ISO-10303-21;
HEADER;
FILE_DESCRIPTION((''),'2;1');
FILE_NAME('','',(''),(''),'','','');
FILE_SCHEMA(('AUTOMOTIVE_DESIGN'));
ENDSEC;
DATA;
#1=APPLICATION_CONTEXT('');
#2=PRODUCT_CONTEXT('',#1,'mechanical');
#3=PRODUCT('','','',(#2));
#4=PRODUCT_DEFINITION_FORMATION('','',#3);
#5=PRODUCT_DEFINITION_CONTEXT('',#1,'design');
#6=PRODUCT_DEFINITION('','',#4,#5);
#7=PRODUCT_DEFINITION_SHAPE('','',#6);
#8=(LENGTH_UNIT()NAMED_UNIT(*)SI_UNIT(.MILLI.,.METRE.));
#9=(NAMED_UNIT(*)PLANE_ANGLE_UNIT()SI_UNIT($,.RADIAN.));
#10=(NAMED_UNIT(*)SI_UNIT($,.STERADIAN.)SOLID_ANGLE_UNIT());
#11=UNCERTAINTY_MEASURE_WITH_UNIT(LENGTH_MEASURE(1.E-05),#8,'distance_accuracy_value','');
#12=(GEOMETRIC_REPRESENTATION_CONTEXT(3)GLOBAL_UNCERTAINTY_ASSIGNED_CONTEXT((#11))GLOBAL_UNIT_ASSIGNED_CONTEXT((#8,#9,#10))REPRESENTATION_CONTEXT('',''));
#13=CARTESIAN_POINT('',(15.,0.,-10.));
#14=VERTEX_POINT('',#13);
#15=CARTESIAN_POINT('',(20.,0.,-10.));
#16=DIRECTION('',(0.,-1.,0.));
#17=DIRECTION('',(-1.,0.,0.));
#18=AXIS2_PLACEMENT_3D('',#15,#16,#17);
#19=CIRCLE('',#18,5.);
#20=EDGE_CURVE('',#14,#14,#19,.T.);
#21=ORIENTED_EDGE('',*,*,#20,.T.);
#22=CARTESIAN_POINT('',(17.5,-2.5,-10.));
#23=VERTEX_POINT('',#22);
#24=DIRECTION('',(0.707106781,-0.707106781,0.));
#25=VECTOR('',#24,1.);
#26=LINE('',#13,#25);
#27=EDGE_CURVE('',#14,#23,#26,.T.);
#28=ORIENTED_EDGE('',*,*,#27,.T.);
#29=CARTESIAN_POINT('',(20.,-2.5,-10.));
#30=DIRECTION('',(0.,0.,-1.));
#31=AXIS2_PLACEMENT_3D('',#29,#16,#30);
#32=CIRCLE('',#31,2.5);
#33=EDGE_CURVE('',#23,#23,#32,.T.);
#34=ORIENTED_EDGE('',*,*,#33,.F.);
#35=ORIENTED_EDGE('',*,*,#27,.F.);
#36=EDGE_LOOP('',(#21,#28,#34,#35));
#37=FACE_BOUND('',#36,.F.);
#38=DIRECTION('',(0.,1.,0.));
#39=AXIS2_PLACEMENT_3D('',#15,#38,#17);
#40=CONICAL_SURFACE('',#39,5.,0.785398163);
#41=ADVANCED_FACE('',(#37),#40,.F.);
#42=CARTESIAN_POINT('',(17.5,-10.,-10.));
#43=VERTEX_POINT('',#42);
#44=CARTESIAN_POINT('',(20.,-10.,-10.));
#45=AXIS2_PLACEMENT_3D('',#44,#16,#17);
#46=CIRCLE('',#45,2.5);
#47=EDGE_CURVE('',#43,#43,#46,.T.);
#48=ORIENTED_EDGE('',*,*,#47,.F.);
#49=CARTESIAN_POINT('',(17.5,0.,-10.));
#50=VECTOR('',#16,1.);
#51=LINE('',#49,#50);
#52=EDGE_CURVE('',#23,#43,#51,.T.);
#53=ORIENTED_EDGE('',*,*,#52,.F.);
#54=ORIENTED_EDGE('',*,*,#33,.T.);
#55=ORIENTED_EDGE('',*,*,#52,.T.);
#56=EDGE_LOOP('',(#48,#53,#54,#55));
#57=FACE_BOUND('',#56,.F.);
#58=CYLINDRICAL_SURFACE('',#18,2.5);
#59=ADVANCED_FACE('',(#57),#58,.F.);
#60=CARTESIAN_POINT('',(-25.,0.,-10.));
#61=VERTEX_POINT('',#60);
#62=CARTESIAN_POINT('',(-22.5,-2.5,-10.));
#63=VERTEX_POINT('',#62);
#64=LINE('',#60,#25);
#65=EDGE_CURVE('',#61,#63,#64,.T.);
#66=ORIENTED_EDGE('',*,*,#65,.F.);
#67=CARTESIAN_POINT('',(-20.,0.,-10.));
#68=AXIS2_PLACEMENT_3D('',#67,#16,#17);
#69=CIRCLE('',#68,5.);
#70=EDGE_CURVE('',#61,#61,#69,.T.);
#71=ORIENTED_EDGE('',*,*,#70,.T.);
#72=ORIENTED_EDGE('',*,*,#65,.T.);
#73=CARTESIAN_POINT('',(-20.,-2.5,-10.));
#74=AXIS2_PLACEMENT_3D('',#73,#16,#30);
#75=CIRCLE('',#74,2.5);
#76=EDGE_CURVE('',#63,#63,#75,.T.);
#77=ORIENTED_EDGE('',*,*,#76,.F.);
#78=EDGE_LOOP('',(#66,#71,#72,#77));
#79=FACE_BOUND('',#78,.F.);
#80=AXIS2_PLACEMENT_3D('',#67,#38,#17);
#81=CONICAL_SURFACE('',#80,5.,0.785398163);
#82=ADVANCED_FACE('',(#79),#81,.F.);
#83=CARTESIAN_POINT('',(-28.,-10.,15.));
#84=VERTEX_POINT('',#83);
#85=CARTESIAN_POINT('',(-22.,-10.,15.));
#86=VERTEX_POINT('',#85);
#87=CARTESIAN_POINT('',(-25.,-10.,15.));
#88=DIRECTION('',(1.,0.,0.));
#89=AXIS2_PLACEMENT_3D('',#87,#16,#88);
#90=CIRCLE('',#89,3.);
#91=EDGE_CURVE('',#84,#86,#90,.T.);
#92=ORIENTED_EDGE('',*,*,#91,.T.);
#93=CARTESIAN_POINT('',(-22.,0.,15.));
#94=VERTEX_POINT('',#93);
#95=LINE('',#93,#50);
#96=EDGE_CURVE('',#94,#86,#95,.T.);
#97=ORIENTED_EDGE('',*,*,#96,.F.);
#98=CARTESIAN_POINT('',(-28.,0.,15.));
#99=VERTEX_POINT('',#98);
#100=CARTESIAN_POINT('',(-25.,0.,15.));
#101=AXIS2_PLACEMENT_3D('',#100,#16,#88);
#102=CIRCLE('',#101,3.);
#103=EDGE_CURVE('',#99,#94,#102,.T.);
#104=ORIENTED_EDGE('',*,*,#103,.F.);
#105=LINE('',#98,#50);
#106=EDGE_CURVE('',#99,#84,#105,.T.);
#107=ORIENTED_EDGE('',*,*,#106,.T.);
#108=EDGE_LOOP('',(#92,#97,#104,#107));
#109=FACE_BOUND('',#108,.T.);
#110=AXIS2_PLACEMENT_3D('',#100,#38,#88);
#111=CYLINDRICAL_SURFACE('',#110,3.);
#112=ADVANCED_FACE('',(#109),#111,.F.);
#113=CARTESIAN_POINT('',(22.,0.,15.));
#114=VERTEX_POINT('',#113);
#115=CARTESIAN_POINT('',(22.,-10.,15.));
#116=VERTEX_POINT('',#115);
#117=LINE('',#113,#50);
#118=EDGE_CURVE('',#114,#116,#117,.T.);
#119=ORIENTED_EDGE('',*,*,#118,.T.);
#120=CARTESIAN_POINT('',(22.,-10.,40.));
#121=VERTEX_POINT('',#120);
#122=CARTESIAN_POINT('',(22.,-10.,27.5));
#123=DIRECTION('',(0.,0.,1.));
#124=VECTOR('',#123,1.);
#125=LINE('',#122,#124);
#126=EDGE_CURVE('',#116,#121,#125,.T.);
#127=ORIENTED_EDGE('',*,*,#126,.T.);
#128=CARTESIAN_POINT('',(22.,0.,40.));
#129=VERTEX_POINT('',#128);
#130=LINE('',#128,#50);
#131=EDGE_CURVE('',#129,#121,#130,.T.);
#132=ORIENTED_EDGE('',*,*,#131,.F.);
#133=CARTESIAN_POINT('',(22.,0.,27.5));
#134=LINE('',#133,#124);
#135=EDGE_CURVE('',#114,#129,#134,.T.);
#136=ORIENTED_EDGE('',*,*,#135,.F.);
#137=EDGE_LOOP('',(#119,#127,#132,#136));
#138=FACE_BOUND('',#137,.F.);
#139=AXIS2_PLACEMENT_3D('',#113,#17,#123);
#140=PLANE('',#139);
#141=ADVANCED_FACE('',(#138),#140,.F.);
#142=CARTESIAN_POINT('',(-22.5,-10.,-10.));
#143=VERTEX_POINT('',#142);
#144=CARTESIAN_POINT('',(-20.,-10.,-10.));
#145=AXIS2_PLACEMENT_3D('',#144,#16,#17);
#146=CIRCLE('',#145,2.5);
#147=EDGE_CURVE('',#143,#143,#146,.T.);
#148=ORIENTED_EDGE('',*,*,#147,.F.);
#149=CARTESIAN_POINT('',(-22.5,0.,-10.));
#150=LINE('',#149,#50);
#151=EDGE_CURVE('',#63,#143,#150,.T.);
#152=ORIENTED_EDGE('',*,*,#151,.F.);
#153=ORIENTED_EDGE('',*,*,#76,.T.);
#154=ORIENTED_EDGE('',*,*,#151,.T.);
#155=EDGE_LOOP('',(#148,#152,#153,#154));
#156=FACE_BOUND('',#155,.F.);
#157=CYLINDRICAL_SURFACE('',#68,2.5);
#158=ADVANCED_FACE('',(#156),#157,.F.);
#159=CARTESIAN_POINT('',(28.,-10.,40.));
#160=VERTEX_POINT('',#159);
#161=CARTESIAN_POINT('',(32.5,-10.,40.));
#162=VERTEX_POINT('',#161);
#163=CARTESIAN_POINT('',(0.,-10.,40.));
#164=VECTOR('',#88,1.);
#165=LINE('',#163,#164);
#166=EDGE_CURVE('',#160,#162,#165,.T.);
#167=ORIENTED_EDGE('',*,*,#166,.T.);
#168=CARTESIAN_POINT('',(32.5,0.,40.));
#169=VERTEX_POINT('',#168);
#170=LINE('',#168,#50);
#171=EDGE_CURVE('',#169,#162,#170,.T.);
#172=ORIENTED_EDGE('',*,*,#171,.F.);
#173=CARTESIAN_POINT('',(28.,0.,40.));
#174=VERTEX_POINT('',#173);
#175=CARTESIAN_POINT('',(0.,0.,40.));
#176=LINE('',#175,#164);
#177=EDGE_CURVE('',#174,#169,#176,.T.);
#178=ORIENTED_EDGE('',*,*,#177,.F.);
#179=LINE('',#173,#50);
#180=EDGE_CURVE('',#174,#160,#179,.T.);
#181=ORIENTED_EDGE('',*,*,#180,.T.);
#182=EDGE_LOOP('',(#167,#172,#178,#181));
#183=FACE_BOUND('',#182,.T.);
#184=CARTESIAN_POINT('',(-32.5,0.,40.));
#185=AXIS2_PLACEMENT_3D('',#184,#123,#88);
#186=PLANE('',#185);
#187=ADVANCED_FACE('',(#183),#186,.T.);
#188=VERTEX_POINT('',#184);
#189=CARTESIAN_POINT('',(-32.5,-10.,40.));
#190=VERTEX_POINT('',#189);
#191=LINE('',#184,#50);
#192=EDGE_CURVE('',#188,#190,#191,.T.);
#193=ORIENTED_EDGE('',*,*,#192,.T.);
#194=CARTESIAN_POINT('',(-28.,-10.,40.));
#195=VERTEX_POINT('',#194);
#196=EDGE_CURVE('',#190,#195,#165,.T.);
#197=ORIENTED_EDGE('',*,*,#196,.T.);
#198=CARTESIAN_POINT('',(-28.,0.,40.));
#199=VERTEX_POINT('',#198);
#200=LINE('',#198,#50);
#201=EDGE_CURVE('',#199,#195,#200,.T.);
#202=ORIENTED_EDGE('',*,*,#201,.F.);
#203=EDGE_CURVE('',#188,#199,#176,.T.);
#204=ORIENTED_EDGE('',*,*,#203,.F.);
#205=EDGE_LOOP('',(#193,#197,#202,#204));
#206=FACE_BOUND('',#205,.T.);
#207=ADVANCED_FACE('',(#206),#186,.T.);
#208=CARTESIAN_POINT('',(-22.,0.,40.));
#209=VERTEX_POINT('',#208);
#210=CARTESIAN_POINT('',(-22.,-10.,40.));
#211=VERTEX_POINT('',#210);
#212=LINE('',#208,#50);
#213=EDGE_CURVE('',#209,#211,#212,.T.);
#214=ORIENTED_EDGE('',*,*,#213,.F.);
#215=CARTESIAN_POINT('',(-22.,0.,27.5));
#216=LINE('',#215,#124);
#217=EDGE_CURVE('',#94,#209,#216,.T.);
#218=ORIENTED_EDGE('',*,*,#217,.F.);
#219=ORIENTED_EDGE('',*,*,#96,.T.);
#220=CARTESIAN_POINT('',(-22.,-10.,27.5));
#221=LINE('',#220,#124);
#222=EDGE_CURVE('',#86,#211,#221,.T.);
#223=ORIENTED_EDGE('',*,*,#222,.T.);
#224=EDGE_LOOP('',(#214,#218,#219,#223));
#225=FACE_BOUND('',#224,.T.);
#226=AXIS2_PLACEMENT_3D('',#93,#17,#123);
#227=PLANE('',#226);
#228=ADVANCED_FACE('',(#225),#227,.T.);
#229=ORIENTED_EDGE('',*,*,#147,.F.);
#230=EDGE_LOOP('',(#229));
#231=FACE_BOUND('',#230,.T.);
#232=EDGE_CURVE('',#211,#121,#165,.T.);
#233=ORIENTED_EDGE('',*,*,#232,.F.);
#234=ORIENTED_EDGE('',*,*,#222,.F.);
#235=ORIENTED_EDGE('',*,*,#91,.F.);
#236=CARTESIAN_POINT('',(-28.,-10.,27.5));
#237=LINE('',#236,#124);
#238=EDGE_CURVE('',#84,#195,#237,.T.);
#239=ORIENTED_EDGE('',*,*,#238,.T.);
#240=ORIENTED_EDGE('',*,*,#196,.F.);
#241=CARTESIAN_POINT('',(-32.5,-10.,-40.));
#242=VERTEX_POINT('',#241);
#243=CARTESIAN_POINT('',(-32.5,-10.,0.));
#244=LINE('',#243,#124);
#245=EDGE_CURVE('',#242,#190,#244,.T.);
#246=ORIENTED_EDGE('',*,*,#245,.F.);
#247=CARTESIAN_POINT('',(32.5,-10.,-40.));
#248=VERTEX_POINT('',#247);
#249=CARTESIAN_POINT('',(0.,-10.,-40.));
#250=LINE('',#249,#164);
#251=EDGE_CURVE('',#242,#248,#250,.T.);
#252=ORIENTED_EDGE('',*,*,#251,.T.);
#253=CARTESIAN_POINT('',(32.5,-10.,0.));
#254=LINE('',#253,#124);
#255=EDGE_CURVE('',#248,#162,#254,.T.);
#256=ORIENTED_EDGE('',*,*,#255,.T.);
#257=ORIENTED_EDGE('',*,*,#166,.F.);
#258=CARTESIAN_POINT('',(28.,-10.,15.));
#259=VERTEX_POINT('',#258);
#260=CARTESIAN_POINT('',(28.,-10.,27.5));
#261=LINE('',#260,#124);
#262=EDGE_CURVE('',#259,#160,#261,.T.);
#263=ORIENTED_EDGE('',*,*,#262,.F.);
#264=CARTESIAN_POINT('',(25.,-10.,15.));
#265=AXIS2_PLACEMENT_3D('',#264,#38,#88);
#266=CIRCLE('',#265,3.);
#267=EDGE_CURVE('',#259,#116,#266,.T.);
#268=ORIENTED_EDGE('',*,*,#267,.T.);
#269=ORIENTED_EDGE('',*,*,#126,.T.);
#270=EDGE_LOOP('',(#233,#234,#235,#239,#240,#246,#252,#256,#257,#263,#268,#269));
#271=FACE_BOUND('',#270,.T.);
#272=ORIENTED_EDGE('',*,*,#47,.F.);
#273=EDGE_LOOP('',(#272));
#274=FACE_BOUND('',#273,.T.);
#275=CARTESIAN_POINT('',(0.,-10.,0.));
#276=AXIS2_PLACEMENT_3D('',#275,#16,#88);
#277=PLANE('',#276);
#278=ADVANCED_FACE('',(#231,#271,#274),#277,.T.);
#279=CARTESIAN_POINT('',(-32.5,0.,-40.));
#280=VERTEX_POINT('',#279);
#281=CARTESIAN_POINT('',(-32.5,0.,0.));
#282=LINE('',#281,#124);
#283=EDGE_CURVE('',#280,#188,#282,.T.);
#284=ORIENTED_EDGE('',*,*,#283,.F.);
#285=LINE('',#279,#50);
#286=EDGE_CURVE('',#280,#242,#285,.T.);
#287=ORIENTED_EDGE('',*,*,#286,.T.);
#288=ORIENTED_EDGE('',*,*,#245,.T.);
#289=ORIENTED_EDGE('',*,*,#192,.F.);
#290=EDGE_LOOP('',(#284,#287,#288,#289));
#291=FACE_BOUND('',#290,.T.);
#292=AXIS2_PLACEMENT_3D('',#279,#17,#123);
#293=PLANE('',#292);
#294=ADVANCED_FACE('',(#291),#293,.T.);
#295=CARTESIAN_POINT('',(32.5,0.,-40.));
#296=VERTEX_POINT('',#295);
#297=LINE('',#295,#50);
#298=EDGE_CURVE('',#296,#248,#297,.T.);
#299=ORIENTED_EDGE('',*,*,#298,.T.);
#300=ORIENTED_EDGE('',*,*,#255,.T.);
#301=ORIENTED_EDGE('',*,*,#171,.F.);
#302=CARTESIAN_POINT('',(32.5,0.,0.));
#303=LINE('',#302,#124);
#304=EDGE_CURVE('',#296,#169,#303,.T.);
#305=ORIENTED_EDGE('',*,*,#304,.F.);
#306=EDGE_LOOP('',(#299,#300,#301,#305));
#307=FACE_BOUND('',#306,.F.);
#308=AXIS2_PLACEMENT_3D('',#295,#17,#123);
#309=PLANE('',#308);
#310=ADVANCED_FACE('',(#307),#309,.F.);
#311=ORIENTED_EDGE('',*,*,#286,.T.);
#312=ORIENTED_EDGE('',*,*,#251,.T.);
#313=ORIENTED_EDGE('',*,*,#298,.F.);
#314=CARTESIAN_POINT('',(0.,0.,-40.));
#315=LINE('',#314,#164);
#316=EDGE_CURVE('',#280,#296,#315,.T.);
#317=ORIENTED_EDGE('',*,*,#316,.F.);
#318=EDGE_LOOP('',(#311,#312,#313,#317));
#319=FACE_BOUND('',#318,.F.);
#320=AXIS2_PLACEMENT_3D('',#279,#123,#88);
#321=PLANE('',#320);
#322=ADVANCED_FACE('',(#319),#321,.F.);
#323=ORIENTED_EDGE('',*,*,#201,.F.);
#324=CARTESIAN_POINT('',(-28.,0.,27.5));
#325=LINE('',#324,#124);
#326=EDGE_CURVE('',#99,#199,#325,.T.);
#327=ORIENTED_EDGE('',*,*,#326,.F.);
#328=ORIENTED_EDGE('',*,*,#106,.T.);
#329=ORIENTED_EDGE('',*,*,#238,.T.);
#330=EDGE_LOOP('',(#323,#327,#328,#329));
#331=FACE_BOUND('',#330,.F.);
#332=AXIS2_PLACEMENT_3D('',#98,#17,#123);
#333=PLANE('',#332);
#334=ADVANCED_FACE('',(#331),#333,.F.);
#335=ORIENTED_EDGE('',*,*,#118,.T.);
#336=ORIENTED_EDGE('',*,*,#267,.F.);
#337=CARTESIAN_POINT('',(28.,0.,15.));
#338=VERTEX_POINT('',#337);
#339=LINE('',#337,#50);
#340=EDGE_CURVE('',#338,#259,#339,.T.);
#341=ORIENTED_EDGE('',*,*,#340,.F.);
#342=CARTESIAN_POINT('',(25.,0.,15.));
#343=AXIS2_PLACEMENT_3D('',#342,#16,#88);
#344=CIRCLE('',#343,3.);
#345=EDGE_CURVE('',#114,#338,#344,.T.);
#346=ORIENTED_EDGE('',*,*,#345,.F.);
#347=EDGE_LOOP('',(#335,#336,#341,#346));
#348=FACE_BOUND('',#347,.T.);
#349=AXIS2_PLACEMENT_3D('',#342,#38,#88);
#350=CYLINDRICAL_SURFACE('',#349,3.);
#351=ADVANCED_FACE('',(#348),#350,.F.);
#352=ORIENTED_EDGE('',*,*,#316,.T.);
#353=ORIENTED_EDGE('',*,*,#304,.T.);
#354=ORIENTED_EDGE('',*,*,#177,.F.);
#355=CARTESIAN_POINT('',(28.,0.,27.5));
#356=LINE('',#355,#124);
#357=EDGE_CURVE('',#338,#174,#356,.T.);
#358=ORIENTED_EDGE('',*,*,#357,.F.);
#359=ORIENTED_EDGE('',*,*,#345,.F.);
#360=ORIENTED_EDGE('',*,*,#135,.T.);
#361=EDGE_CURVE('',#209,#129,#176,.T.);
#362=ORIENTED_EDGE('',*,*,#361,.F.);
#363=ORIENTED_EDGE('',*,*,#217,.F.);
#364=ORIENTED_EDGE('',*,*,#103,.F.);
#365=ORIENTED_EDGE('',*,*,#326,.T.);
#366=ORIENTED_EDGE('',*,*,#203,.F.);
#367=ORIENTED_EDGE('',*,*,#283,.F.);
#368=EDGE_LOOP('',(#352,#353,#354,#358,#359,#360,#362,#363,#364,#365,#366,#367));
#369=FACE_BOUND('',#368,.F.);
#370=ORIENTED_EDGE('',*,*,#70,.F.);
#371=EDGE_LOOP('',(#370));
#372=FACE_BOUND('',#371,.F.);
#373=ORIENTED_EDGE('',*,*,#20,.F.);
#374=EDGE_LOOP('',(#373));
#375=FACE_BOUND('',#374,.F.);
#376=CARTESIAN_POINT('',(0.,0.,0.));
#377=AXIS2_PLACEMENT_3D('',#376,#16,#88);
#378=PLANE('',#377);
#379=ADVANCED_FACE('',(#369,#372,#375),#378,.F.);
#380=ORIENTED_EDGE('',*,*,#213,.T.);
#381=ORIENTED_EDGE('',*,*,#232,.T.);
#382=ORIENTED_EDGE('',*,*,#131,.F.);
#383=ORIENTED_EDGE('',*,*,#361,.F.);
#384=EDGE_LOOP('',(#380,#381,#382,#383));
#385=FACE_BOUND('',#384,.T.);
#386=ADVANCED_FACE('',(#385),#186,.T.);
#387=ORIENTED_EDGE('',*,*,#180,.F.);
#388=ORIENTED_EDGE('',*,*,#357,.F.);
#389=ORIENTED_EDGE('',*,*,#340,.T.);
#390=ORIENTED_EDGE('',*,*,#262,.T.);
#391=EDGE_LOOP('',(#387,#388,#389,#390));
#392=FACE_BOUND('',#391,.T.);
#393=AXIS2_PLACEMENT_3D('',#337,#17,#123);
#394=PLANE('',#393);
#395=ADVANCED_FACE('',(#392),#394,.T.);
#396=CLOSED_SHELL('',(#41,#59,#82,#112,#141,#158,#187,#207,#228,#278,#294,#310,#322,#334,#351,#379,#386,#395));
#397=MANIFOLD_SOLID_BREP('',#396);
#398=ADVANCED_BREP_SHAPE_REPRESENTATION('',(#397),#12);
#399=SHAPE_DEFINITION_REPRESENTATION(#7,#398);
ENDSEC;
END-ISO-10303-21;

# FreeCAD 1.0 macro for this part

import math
import FreeCAD as App
import Part
import Sketcher

V = App.Vector

doc = App.newDocument("Part")
body = doc.addObject("PartDesign::Body", "Body")

# Sketch on XZ plane
sketch1 = body.newObject("Sketcher::SketchObject", "Sketch")
sketch1.AttachmentSupport = (doc.getObject("XZ_Plane"), [""])
sketch1.MapMode = "FlatFace"
sketch1.addGeometry([
    Part.LineSegment(V(-32.5, 40, 0), V(-32.5, -40, 0)),
    Part.LineSegment(V(-32.5, -40, 0), V(32.5, -40, 0)),
    Part.LineSegment(V(32.5, -40, 0), V(32.5, 40, 0)),
    Part.LineSegment(V(32.5, 40, 0), V(-32.5, 40, 0)),
], False)
sketch1.addConstraint([
    Sketcher.Constraint("Coincident", 0, 2, 1, 1),
    Sketcher.Constraint("Coincident", 1, 2, 2, 1),
    Sketcher.Constraint("Coincident", 2, 2, 3, 1),
    Sketcher.Constraint("Coincident", 3, 2, 0, 1),
    Sketcher.Constraint("Vertical", 0),
    Sketcher.Constraint("Horizontal", 1),
    Sketcher.Constraint("Vertical", 2),
    Sketcher.Constraint("Horizontal", 3),
    Sketcher.Constraint("Symmetric", 0, 2, 2, 2, -1, 1),
    Sketcher.Constraint("DistanceX", 1, 1, 1, 2, 65.0),
    Sketcher.Constraint("DistanceY", 0, 2, 0, 1, 80.0),
])
pad1 = body.newObject("PartDesign::Pad", "Pad")
pad1.Profile = sketch1
pad1.Length = 10

# Sketch on XZ plane
sketch2 = body.newObject("Sketcher::SketchObject", "Sketch001")
sketch2.AttachmentSupport = (doc.getObject("XZ_Plane"), [""])
sketch2.MapMode = "FlatFace"
sketch2.addGeometry([
    Part.Circle(V(-20, -10, 0), V(0, 0, 1), 2.5),
    Part.Circle(V(20, -10, 0), V(0, 0, 1), 2.5),
], False)
sketch2.addConstraint([
    Sketcher.Constraint("Equal", 0, 1),
    Sketcher.Constraint("Symmetric", 0, 3, 1, 3, -2),
    Sketcher.Constraint("Diameter", 0, 5.0),
    Sketcher.Constraint("DistanceX", 0, 3, -1, 1, 20.0),
    Sketcher.Constraint("DistanceY", 0, 3, -1, 1, 10.0),
])
doc.recompute()
hole = body.newObject("PartDesign::Hole", "Hole")
hole.Profile = sketch2
hole.ThreadType = "None"
hole.Diameter = 5
hole.DepthType = "ThroughAll"
hole.HoleCutType = "Countersink"
hole.HoleCutDiameter = 10
hole.HoleCutCountersinkAngle = 90
hole.Reversed = True

# Sketch on XZ plane
sketch3 = body.newObject("Sketcher::SketchObject", "Sketch002")
sketch3.AttachmentSupport = (doc.getObject("XZ_Plane"), [""])
sketch3.MapMode = "FlatFace"
sketch3.addGeometry([
    Part.LineSegment(V(-28, 40, 0), V(-28, 15, 0)),
    Part.ArcOfCircle(Part.Circle(V(-25, 15, 0), V(0, 0, 1), 3), math.radians(180), math.radians(360)),
    Part.LineSegment(V(-22, 15, 0), V(-22, 40, 0)),
    Part.LineSegment(V(-22, 40, 0), V(-28, 40, 0)),
], False)
sketch3.addConstraint([
    Sketcher.Constraint("Tangent", 0, 2, 1, 1),
    Sketcher.Constraint("Tangent", 1, 2, 2, 1),
    Sketcher.Constraint("Coincident", 2, 2, 3, 1),
    Sketcher.Constraint("Coincident", 3, 2, 0, 1),
    Sketcher.Constraint("Vertical", 0),
    Sketcher.Constraint("Vertical", 2),
    Sketcher.Constraint("Horizontal", 3),
    Sketcher.Constraint("Radius", 1, 3.0),
    Sketcher.Constraint("DistanceY", 0, 2, 0, 1, 25.0),
    Sketcher.Constraint("DistanceX", 1, 3, -1, 1, 25.0),
    Sketcher.Constraint("DistanceY", -1, 1, 1, 3, 15.0),
])
pocket1 = body.newObject("PartDesign::Pocket", "Pocket")
pocket1.Profile = sketch3
pocket1.Length = 10
pocket1.Reversed = True

# Sketch on XZ plane
sketch4 = body.newObject("Sketcher::SketchObject", "Sketch003")
sketch4.AttachmentSupport = (doc.getObject("XZ_Plane"), [""])
sketch4.MapMode = "FlatFace"
sketch4.addGeometry([
    Part.LineSegment(V(22, 40, 0), V(22, 15, 0)),
    Part.LineSegment(V(22, 15, 0), V(28, 15, 0)),
    Part.LineSegment(V(28, 15, 0), V(28, 40, 0)),
    Part.LineSegment(V(28, 40, 0), V(22, 40, 0)),
], False)
sketch4.addConstraint([
    Sketcher.Constraint("Coincident", 0, 2, 1, 1),
    Sketcher.Constraint("Coincident", 1, 2, 2, 1),
    Sketcher.Constraint("Coincident", 2, 2, 3, 1),
    Sketcher.Constraint("Coincident", 3, 2, 0, 1),
    Sketcher.Constraint("Vertical", 0),
    Sketcher.Constraint("Horizontal", 1),
    Sketcher.Constraint("Vertical", 2),
    Sketcher.Constraint("Horizontal", 3),
    Sketcher.Constraint("DistanceX", 1, 1, 1, 2, 6.0),
    Sketcher.Constraint("DistanceY", 0, 2, 0, 1, 25.0),
    Sketcher.Constraint("DistanceX", -1, 1, 0, 2, 22.0),
    Sketcher.Constraint("DistanceY", -1, 1, 0, 2, 15.0),
])
pocket2 = body.newObject("PartDesign::Pocket", "Pocket001")
pocket2.Profile = sketch4
pocket2.Length = 10
pocket2.Reversed = True

# Sketch on XZ plane
sketch5 = body.newObject("Sketcher::SketchObject", "Sketch004")
sketch5.AttachmentSupport = (doc.getObject("XZ_Plane"), [""])
sketch5.MapMode = "FlatFace"
sketch5.addGeometry(Part.Circle(V(25, 15, 0), V(0, 0, 1), 3), False)
sketch5.addConstraint([
    Sketcher.Constraint("Diameter", 0, 6.0),
    Sketcher.Constraint("DistanceX", -1, 1, 0, 3, 25.0),
    Sketcher.Constraint("DistanceY", -1, 1, 0, 3, 15.0),
])
pocket3 = body.newObject("PartDesign::Pocket", "Pocket002")
pocket3.Profile = sketch5
pocket3.Length = 25
pocket3.Reversed = True

doc.recompute()
